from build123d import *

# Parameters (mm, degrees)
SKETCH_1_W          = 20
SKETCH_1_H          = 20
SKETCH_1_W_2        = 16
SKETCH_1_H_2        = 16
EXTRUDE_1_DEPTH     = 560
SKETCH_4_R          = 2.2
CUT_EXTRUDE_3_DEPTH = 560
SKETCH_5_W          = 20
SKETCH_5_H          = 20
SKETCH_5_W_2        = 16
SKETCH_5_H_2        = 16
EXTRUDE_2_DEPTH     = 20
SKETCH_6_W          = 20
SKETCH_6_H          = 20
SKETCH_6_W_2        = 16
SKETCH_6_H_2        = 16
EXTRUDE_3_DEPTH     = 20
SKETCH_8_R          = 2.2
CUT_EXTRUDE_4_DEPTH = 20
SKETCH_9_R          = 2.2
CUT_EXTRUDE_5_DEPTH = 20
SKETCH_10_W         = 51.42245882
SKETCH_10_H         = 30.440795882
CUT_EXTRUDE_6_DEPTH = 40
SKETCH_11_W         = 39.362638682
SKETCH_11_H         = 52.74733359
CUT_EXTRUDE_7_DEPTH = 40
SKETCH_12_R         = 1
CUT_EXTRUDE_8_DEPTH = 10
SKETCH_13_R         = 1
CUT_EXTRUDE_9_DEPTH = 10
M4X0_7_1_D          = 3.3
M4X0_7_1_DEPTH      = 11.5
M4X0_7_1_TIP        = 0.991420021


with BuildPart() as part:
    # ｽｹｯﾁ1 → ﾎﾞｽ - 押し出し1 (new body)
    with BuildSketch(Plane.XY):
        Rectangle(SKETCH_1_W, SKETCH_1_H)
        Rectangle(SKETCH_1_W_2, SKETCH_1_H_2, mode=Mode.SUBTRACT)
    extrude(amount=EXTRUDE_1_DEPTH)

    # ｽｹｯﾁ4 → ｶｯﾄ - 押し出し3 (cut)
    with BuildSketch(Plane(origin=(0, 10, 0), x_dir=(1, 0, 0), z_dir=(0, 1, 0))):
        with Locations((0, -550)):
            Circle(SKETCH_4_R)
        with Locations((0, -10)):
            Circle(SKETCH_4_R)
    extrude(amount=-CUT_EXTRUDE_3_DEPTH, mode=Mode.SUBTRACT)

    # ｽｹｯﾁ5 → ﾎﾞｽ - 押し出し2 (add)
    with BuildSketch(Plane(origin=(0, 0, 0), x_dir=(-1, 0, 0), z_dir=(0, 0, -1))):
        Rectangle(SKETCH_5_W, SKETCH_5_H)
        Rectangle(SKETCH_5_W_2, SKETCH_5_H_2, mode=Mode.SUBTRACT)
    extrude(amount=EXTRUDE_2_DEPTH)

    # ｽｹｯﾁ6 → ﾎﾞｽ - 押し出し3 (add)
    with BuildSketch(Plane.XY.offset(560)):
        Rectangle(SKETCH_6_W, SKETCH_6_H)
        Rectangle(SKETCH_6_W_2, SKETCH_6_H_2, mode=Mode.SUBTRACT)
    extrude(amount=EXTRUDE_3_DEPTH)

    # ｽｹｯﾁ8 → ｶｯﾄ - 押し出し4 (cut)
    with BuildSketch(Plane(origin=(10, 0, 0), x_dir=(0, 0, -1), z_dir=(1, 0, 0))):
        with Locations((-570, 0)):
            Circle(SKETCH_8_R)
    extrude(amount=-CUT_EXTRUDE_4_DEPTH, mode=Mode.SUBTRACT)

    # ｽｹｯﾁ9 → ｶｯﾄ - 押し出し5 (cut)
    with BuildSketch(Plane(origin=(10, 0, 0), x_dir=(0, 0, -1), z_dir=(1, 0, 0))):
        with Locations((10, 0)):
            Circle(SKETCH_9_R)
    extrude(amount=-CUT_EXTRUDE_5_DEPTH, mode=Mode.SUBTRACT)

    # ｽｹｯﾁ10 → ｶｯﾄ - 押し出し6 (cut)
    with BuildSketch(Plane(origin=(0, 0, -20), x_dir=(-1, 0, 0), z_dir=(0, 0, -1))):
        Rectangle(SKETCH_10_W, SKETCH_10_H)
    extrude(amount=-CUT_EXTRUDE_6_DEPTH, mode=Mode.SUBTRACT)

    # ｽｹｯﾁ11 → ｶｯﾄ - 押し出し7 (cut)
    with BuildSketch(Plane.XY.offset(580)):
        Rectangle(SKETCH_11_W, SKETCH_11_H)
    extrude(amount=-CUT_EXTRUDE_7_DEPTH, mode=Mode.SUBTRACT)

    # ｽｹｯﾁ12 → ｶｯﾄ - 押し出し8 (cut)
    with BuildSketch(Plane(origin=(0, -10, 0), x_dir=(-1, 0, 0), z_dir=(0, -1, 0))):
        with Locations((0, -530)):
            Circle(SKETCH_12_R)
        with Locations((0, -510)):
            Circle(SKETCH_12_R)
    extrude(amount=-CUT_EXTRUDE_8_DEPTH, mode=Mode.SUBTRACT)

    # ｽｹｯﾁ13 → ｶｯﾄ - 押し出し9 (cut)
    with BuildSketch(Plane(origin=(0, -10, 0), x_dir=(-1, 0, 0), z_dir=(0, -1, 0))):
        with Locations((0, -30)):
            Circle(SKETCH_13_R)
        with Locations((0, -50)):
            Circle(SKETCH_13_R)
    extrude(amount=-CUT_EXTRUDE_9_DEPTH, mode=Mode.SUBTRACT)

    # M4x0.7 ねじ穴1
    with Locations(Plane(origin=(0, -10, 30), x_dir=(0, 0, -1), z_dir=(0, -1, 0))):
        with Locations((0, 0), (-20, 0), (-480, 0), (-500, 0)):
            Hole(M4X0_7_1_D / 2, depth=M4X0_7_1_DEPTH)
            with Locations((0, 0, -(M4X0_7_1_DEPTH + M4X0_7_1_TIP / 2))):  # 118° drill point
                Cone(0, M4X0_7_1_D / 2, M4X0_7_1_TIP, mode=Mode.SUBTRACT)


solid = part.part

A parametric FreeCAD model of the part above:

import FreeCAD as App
import Part
import Sketcher

V = App.Vector
Q = App.Units.Quantity

doc = App.newDocument("Part")
params = doc.addObject("Spreadsheet::Sheet", "Params")
for row, (alias, value) in enumerate([
    ("sketch1_width", "20 mm"),
    ("sketch1_width2", "16 mm"),
    ("pad1_length", "560 mm"),
    ("sketch2_diameter", "4.4 mm"),
    ("pocket1_length", "560 mm"),
    ("sketch3_width", "20 mm"),
    ("sketch3_width2", "16 mm"),
    ("pad2_length", "20 mm"),
    ("sketch4_width", "20 mm"),
    ("sketch4_width2", "16 mm"),
    ("pad3_length", "20 mm"),
    ("sketch5_diameter", "4.4 mm"),
    ("pocket2_length", "20 mm"),
    ("sketch6_diameter", "4.4 mm"),
    ("pocket3_length", "20 mm"),
    ("pocket4_length", "40 mm"),
    ("pocket5_length", "40 mm"),
    ("sketch9_diameter", "2 mm"),
    ("pocket6_length", "10 mm"),
    ("sketch10_diameter", "2 mm"),
    ("pocket7_length", "10 mm"),
    ("sketch11_diameter", "3.3 mm"),
    ("hole_diameter", "3.3 mm"),
    ("hole_depth", "11.5 mm"),
], start=1):
    params.set(f"A{row}", alias)
    params.set(f"B{row}", "=" + value)
    params.setAlias(f"B{row}", alias)

body = doc.addObject("PartDesign::Body", "Body")

# Sketch on XY plane
sketch1 = body.newObject("Sketcher::SketchObject", "Sketch")
sketch1.AttachmentSupport = (doc.getObject("XY_Plane"), [""])
sketch1.MapMode = "FlatFace"
sketch1.addGeometry([
    Part.LineSegment(V(-10, 10, 0), V(-10, -10, 0)),  # 0
    Part.LineSegment(V(-10, -10, 0), V(10, -10, 0)),  # 1
    Part.LineSegment(V(10, -10, 0), V(10, 10, 0)),  # 2
    Part.LineSegment(V(10, 10, 0), V(-10, 10, 0)),  # 3
    Part.LineSegment(V(8, -8, 0), V(-8, -8, 0)),  # 4
    Part.LineSegment(V(-8, -8, 0), V(-8, 8, 0)),  # 5
    Part.LineSegment(V(-8, 8, 0), V(8, 8, 0)),  # 6
    Part.LineSegment(V(8, 8, 0), V(8, -8, 0)),  # 7
], False)
sketch1.addConstraint([
    Sketcher.Constraint("Coincident", 0, 2, 1, 1),
    Sketcher.Constraint("Coincident", 1, 2, 2, 1),
    Sketcher.Constraint("Coincident", 2, 2, 3, 1),
    Sketcher.Constraint("Coincident", 3, 2, 0, 1),
    Sketcher.Constraint("Coincident", 4, 2, 5, 1),
    Sketcher.Constraint("Coincident", 5, 2, 6, 1),
    Sketcher.Constraint("Coincident", 6, 2, 7, 1),
    Sketcher.Constraint("Coincident", 7, 2, 4, 1),
    Sketcher.Constraint("Vertical", 0),
    Sketcher.Constraint("Horizontal", 1),
    Sketcher.Constraint("Vertical", 2),
    Sketcher.Constraint("Horizontal", 3),
    Sketcher.Constraint("Horizontal", 4),
    Sketcher.Constraint("Vertical", 5),
    Sketcher.Constraint("Horizontal", 6),
    Sketcher.Constraint("Vertical", 7),
    Sketcher.Constraint("Symmetric", 0, 2, 2, 2, -1, 1),
    Sketcher.Constraint("Symmetric", 4, 2, 6, 2, -1, 1),
    Sketcher.Constraint("Equal", 3, 0),
    Sketcher.Constraint("Equal", 6, 5),
    Sketcher.Constraint("DistanceX", 1, 1, 1, 2, Q("20 mm")),
    Sketcher.Constraint("DistanceX", 4, 2, 4, 1, Q("16 mm")),
])
sketch1.setExpression("Constraints[20]", "Params.sketch1_width")
sketch1.setExpression("Constraints[21]", "Params.sketch1_width2")
pad1 = body.newObject("PartDesign::Pad", "Pad")
pad1.Profile = sketch1
pad1.setExpression("Length", "Params.pad1_length")

# Sketch on XZ plane
sketch2 = body.newObject("Sketcher::SketchObject", "Sketch001")
sketch2.AttachmentSupport = (doc.getObject("XZ_Plane"), [""])
sketch2.MapMode = "FlatFace"
sketch2.AttachmentOffset = App.Placement(V(0, 0, -10), App.Rotation())
sketch2.addGeometry([
    Part.Circle(V(0, 550, 0), V(0, 0, 1), 2.2),
    Part.Circle(V(0, 10, 0), V(0, 0, 1), 2.2),
], False)
sketch2.addConstraint([
    Sketcher.Constraint("Equal", 0, 1),
    Sketcher.Constraint("PointOnObject", 0, 3, -2),
    Sketcher.Constraint("PointOnObject", 1, 3, -2),
    Sketcher.Constraint("Diameter", 0, Q("4.4 mm")),
    Sketcher.Constraint("DistanceY", -1, 1, 0, 3, Q("550 mm")),
    Sketcher.Constraint("DistanceY", -1, 1, 1, 3, Q("10 mm")),
])
sketch2.setExpression("Constraints[3]", "Params.sketch2_diameter")
pocket1 = body.newObject("PartDesign::Pocket", "Pocket")
pocket1.Profile = sketch2
pocket1.setExpression("Length", "Params.pocket1_length")
pocket1.Reversed = True

# Sketch on XY plane
sketch3 = body.newObject("Sketcher::SketchObject", "Sketch002")
sketch3.AttachmentSupport = (doc.getObject("XY_Plane"), [""])
sketch3.MapMode = "FlatFace"
sketch3.addGeometry([
    Part.LineSegment(V(10, 10, 0), V(10, -10, 0)),  # 0
    Part.LineSegment(V(10, -10, 0), V(-10, -10, 0)),  # 1
    Part.LineSegment(V(-10, -10, 0), V(-10, 10, 0)),  # 2
    Part.LineSegment(V(-10, 10, 0), V(10, 10, 0)),  # 3
    Part.LineSegment(V(-8, -8, 0), V(8, -8, 0)),  # 4
    Part.LineSegment(V(8, -8, 0), V(8, 8, 0)),  # 5
    Part.LineSegment(V(8, 8, 0), V(-8, 8, 0)),  # 6
    Part.LineSegment(V(-8, 8, 0), V(-8, -8, 0)),  # 7
], False)
sketch3.addConstraint([
    Sketcher.Constraint("Coincident", 0, 2, 1, 1),
    Sketcher.Constraint("Coincident", 1, 2, 2, 1),
    Sketcher.Constraint("Coincident", 2, 2, 3, 1),
    Sketcher.Constraint("Coincident", 3, 2, 0, 1),
    Sketcher.Constraint("Coincident", 4, 2, 5, 1),
    Sketcher.Constraint("Coincident", 5, 2, 6, 1),
    Sketcher.Constraint("Coincident", 6, 2, 7, 1),
    Sketcher.Constraint("Coincident", 7, 2, 4, 1),
    Sketcher.Constraint("Vertical", 0),
    Sketcher.Constraint("Horizontal", 1),
    Sketcher.Constraint("Vertical", 2),
    Sketcher.Constraint("Horizontal", 3),
    Sketcher.Constraint("Horizontal", 4),
    Sketcher.Constraint("Vertical", 5),
    Sketcher.Constraint("Horizontal", 6),
    Sketcher.Constraint("Vertical", 7),
    Sketcher.Constraint("Symmetric", 0, 2, 2, 2, -1, 1),
    Sketcher.Constraint("Symmetric", 4, 2, 6, 2, -1, 1),
    Sketcher.Constraint("Equal", 3, 0),
    Sketcher.Constraint("Equal", 6, 5),
    Sketcher.Constraint("DistanceX", 1, 2, 1, 1, Q("20 mm")),
    Sketcher.Constraint("DistanceX", 4, 1, 4, 2, Q("16 mm")),
])
sketch3.setExpression("Constraints[20]", "Params.sketch3_width")
sketch3.setExpression("Constraints[21]", "Params.sketch3_width2")
pad2 = body.newObject("PartDesign::Pad", "Pad001")
pad2.Profile = sketch3
pad2.setExpression("Length", "Params.pad2_length")
pad2.Reversed = True

# Sketch on XY plane
sketch4 = body.newObject("Sketcher::SketchObject", "Sketch003")
sketch4.AttachmentSupport = (doc.getObject("XY_Plane"), [""])
sketch4.MapMode = "FlatFace"
sketch4.AttachmentOffset = App.Placement(V(0, 0, 560), App.Rotation())
sketch4.addGeometry([
    Part.LineSegment(V(-10, 10, 0), V(-10, -10, 0)),  # 0
    Part.LineSegment(V(-10, -10, 0), V(10, -10, 0)),  # 1
    Part.LineSegment(V(10, -10, 0), V(10, 10, 0)),  # 2
    Part.LineSegment(V(10, 10, 0), V(-10, 10, 0)),  # 3
    Part.LineSegment(V(8, -8, 0), V(-8, -8, 0)),  # 4
    Part.LineSegment(V(-8, -8, 0), V(-8, 8, 0)),  # 5
    Part.LineSegment(V(-8, 8, 0), V(8, 8, 0)),  # 6
    Part.LineSegment(V(8, 8, 0), V(8, -8, 0)),  # 7
], False)
sketch4.addConstraint([
    Sketcher.Constraint("Coincident", 0, 2, 1, 1),
    Sketcher.Constraint("Coincident", 1, 2, 2, 1),
    Sketcher.Constraint("Coincident", 2, 2, 3, 1),
    Sketcher.Constraint("Coincident", 3, 2, 0, 1),
    Sketcher.Constraint("Coincident", 4, 2, 5, 1),
    Sketcher.Constraint("Coincident", 5, 2, 6, 1),
    Sketcher.Constraint("Coincident", 6, 2, 7, 1),
    Sketcher.Constraint("Coincident", 7, 2, 4, 1),
    Sketcher.Constraint("Vertical", 0),
    Sketcher.Constraint("Horizontal", 1),
    Sketcher.Constraint("Vertical", 2),
    Sketcher.Constraint("Horizontal", 3),
    Sketcher.Constraint("Horizontal", 4),
    Sketcher.Constraint("Vertical", 5),
    Sketcher.Constraint("Horizontal", 6),
    Sketcher.Constraint("Vertical", 7),
    Sketcher.Constraint("Symmetric", 0, 2, 2, 2, -1, 1),
    Sketcher.Constraint("Symmetric", 4, 2, 6, 2, -1, 1),
    Sketcher.Constraint("Equal", 3, 0),
    Sketcher.Constraint("Equal", 6, 5),
    Sketcher.Constraint("DistanceX", 1, 1, 1, 2, Q("20 mm")),
    Sketcher.Constraint("DistanceX", 4, 2, 4, 1, Q("16 mm")),
])
sketch4.setExpression("Constraints[20]", "Params.sketch4_width")
sketch4.setExpression("Constraints[21]", "Params.sketch4_width2")
pad3 = body.newObject("PartDesign::Pad", "Pad002")
pad3.Profile = sketch4
pad3.setExpression("Length", "Params.pad3_length")

# Sketch on YZ plane
sketch5 = body.newObject("Sketcher::SketchObject", "Sketch004")
sketch5.AttachmentSupport = (doc.getObject("YZ_Plane"), [""])
sketch5.MapMode = "FlatFace"
sketch5.AttachmentOffset = App.Placement(V(0, 0, 10), App.Rotation())
sketch5.addGeometry(Part.Circle(V(0, 570, 0), V(0, 0, 1), 2.2), False)
sketch5.addConstraint([
    Sketcher.Constraint("PointOnObject", 0, 3, -2),
    Sketcher.Constraint("Diameter", 0, Q("4.4 mm")),
    Sketcher.Constraint("DistanceY", -1, 1, 0, 3, Q("570 mm")),
])
sketch5.setExpression("Constraints[1]", "Params.sketch5_diameter")
pocket2 = body.newObject("PartDesign::Pocket", "Pocket001")
pocket2.Profile = sketch5
pocket2.setExpression("Length", "Params.pocket2_length")

# Sketch on YZ plane
sketch6 = body.newObject("Sketcher::SketchObject", "Sketch005")
sketch6.AttachmentSupport = (doc.getObject("YZ_Plane"), [""])
sketch6.MapMode = "FlatFace"
sketch6.AttachmentOffset = App.Placement(V(0, 0, 10), App.Rotation())
sketch6.addGeometry(Part.Circle(V(0, -10, 0), V(0, 0, 1), 2.2), False)
sketch6.addConstraint([
    Sketcher.Constraint("PointOnObject", 0, 3, -2),
    Sketcher.Constraint("Diameter", 0, Q("4.4 mm")),
    Sketcher.Constraint("DistanceY", 0, 3, -1, 1, Q("10 mm")),
])
sketch6.setExpression("Constraints[1]", "Params.sketch6_diameter")
pocket3 = body.newObject("PartDesign::Pocket", "Pocket002")
pocket3.Profile = sketch6
pocket3.setExpression("Length", "Params.pocket3_length")

# Sketch on XY plane
sketch7 = body.newObject("Sketcher::SketchObject", "Sketch006")
sketch7.AttachmentSupport = (doc.getObject("XY_Plane"), [""])
sketch7.MapMode = "FlatFace"
sketch7.AttachmentOffset = App.Placement(V(0, 0, -20), App.Rotation())
sketch7.addGeometry([
    Part.LineSegment(V(26, 15, 0), V(26, -15, 0)),
    Part.LineSegment(V(26, -15, 0), V(-26, -15, 0)),
    Part.LineSegment(V(-26, -15, 0), V(-26, 15, 0)),
    Part.LineSegment(V(-26, 15, 0), V(26, 15, 0)),
], False)
sketch7.addConstraint([
    Sketcher.Constraint("Coincident", 0, 2, 1, 1),
    Sketcher.Constraint("Coincident", 1, 2, 2, 1),
    Sketcher.Constraint("Coincident", 2, 2, 3, 1),
    Sketcher.Constraint("Coincident", 3, 2, 0, 1),
    Sketcher.Constraint("Vertical", 0),
    Sketcher.Constraint("Horizontal", 1),
    Sketcher.Constraint("Vertical", 2),
    Sketcher.Constraint("Horizontal", 3),
    Sketcher.Constraint("Symmetric", 0, 2, 2, 2, -1, 1),
    Sketcher.Constraint("DistanceX", 1, 2, 1, 1, Q("51.422459 mm")),
    Sketcher.Constraint("DistanceY", 0, 2, 0, 1, Q("30.440796 mm")),
])
pocket4 = body.newObject("PartDesign::Pocket", "Pocket003")
pocket4.Profile = sketch7
pocket4.setExpression("Length", "Params.pocket4_length")
pocket4.Reversed = True

# Sketch on XY plane
sketch8 = body.newObject("Sketcher::SketchObject", "Sketch007")
sketch8.AttachmentSupport = (doc.getObject("XY_Plane"), [""])
sketch8.MapMode = "FlatFace"
sketch8.AttachmentOffset = App.Placement(V(0, 0, 580), App.Rotation())
sketch8.addGeometry([
    Part.LineSegment(V(-20, 26, 0), V(-20, -26, 0)),
    Part.LineSegment(V(-20, -26, 0), V(20, -26, 0)),
    Part.LineSegment(V(20, -26, 0), V(20, 26, 0)),
    Part.LineSegment(V(20, 26, 0), V(-20, 26, 0)),
], False)
sketch8.addConstraint([
    Sketcher.Constraint("Coincident", 0, 2, 1, 1),
    Sketcher.Constraint("Coincident", 1, 2, 2, 1),
    Sketcher.Constraint("Coincident", 2, 2, 3, 1),
    Sketcher.Constraint("Coincident", 3, 2, 0, 1),
    Sketcher.Constraint("Vertical", 0),
    Sketcher.Constraint("Horizontal", 1),
    Sketcher.Constraint("Vertical", 2),
    Sketcher.Constraint("Horizontal", 3),
    Sketcher.Constraint("Symmetric", 0, 2, 2, 2, -1, 1),
    Sketcher.Constraint("DistanceX", 1, 1, 1, 2, Q("39.362639 mm")),
    Sketcher.Constraint("DistanceY", 0, 2, 0, 1, Q("52.747334 mm")),
])
pocket5 = body.newObject("PartDesign::Pocket", "Pocket004")
pocket5.Profile = sketch8
pocket5.setExpression("Length", "Params.pocket5_length")

# Sketch on XZ plane
sketch9 = body.newObject("Sketcher::SketchObject", "Sketch008")
sketch9.AttachmentSupport = (doc.getObject("XZ_Plane"), [""])
sketch9.MapMode = "FlatFace"
sketch9.AttachmentOffset = App.Placement(V(0, 0, 10), App.Rotation())
sketch9.addGeometry([
    Part.Circle(V(0, 530, 0), V(0, 0, 1), 1),
    Part.Circle(V(0, 510, 0), V(0, 0, 1), 1),
], False)
sketch9.addConstraint([
    Sketcher.Constraint("Equal", 0, 1),
    Sketcher.Constraint("PointOnObject", 0, 3, -2),
    Sketcher.Constraint("PointOnObject", 1, 3, -2),
    Sketcher.Constraint("Diameter", 0, Q("2 mm")),
    Sketcher.Constraint("DistanceY", -1, 1, 0, 3, Q("530 mm")),
    Sketcher.Constraint("DistanceY", -1, 1, 1, 3, Q("510 mm")),
])
sketch9.setExpression("Constraints[3]", "Params.sketch9_diameter")
pocket6 = body.newObject("PartDesign::Pocket", "Pocket005")
pocket6.Profile = sketch9
pocket6.setExpression("Length", "Params.pocket6_length")

# Sketch on XZ plane
sketch10 = body.newObject("Sketcher::SketchObject", "Sketch009")
sketch10.AttachmentSupport = (doc.getObject("XZ_Plane"), [""])
sketch10.MapMode = "FlatFace"
sketch10.AttachmentOffset = App.Placement(V(0, 0, 10), App.Rotation())
sketch10.addGeometry([
    Part.Circle(V(0, 30, 0), V(0, 0, 1), 1),
    Part.Circle(V(0, 50, 0), V(0, 0, 1), 1),
], False)
sketch10.addConstraint([
    Sketcher.Constraint("Equal", 0, 1),
    Sketcher.Constraint("PointOnObject", 0, 3, -2),
    Sketcher.Constraint("PointOnObject", 1, 3, -2),
    Sketcher.Constraint("Diameter", 0, Q("2 mm")),
    Sketcher.Constraint("DistanceY", -1, 1, 0, 3, Q("30 mm")),
    Sketcher.Constraint("DistanceY", -1, 1, 1, 3, Q("50 mm")),
])
sketch10.setExpression("Constraints[3]", "Params.sketch10_diameter")
pocket7 = body.newObject("PartDesign::Pocket", "Pocket006")
pocket7.Profile = sketch10
pocket7.setExpression("Length", "Params.pocket7_length")

# Sketch on XZ plane
sketch11 = body.newObject("Sketcher::SketchObject", "Sketch010")
sketch11.AttachmentSupport = (doc.getObject("XZ_Plane"), [""])
sketch11.MapMode = "FlatFace"
sketch11.AttachmentOffset = App.Placement(V(0, 0, 10), App.Rotation())
sketch11.addGeometry([
    Part.Circle(V(0, 30, 0), V(0, 0, 1), 1.6),
    Part.Circle(V(0, 50, 0), V(0, 0, 1), 1.6),
    Part.Circle(V(0, 510, 0), V(0, 0, 1), 1.6),
    Part.Circle(V(0, 530, 0), V(0, 0, 1), 1.6),
], False)
sketch11.addConstraint([
    Sketcher.Constraint("Equal", 0, 1),
    Sketcher.Constraint("Equal", 1, 2),
    Sketcher.Constraint("Equal", 2, 3),
    Sketcher.Constraint("PointOnObject", 0, 3, -2),
    Sketcher.Constraint("PointOnObject", 1, 3, -2),
    Sketcher.Constraint("PointOnObject", 2, 3, -2),
    Sketcher.Constraint("PointOnObject", 3, 3, -2),
    Sketcher.Constraint("Diameter", 0, Q("3.3 mm")),
    Sketcher.Constraint("DistanceY", -1, 1, 0, 3, Q("30 mm")),
    Sketcher.Constraint("DistanceY", -1, 1, 1, 3, Q("50 mm")),
    Sketcher.Constraint("DistanceY", -1, 1, 2, 3, Q("510 mm")),
    Sketcher.Constraint("DistanceY", -1, 1, 3, 3, Q("530 mm")),
])
sketch11.setExpression("Constraints[7]", "Params.sketch11_diameter")
doc.recompute()
hole = body.newObject("PartDesign::Hole", "Hole")
hole.Profile = sketch11
hole.ThreadType = "None"
hole.setExpression("Diameter", "Params.hole_diameter")
hole.DepthType = "Dimension"
hole.setExpression("Depth", "Params.hole_depth")
hole.DrillPoint = "Angled"
hole.DrillPointAngle = 118

doc.recompute()
